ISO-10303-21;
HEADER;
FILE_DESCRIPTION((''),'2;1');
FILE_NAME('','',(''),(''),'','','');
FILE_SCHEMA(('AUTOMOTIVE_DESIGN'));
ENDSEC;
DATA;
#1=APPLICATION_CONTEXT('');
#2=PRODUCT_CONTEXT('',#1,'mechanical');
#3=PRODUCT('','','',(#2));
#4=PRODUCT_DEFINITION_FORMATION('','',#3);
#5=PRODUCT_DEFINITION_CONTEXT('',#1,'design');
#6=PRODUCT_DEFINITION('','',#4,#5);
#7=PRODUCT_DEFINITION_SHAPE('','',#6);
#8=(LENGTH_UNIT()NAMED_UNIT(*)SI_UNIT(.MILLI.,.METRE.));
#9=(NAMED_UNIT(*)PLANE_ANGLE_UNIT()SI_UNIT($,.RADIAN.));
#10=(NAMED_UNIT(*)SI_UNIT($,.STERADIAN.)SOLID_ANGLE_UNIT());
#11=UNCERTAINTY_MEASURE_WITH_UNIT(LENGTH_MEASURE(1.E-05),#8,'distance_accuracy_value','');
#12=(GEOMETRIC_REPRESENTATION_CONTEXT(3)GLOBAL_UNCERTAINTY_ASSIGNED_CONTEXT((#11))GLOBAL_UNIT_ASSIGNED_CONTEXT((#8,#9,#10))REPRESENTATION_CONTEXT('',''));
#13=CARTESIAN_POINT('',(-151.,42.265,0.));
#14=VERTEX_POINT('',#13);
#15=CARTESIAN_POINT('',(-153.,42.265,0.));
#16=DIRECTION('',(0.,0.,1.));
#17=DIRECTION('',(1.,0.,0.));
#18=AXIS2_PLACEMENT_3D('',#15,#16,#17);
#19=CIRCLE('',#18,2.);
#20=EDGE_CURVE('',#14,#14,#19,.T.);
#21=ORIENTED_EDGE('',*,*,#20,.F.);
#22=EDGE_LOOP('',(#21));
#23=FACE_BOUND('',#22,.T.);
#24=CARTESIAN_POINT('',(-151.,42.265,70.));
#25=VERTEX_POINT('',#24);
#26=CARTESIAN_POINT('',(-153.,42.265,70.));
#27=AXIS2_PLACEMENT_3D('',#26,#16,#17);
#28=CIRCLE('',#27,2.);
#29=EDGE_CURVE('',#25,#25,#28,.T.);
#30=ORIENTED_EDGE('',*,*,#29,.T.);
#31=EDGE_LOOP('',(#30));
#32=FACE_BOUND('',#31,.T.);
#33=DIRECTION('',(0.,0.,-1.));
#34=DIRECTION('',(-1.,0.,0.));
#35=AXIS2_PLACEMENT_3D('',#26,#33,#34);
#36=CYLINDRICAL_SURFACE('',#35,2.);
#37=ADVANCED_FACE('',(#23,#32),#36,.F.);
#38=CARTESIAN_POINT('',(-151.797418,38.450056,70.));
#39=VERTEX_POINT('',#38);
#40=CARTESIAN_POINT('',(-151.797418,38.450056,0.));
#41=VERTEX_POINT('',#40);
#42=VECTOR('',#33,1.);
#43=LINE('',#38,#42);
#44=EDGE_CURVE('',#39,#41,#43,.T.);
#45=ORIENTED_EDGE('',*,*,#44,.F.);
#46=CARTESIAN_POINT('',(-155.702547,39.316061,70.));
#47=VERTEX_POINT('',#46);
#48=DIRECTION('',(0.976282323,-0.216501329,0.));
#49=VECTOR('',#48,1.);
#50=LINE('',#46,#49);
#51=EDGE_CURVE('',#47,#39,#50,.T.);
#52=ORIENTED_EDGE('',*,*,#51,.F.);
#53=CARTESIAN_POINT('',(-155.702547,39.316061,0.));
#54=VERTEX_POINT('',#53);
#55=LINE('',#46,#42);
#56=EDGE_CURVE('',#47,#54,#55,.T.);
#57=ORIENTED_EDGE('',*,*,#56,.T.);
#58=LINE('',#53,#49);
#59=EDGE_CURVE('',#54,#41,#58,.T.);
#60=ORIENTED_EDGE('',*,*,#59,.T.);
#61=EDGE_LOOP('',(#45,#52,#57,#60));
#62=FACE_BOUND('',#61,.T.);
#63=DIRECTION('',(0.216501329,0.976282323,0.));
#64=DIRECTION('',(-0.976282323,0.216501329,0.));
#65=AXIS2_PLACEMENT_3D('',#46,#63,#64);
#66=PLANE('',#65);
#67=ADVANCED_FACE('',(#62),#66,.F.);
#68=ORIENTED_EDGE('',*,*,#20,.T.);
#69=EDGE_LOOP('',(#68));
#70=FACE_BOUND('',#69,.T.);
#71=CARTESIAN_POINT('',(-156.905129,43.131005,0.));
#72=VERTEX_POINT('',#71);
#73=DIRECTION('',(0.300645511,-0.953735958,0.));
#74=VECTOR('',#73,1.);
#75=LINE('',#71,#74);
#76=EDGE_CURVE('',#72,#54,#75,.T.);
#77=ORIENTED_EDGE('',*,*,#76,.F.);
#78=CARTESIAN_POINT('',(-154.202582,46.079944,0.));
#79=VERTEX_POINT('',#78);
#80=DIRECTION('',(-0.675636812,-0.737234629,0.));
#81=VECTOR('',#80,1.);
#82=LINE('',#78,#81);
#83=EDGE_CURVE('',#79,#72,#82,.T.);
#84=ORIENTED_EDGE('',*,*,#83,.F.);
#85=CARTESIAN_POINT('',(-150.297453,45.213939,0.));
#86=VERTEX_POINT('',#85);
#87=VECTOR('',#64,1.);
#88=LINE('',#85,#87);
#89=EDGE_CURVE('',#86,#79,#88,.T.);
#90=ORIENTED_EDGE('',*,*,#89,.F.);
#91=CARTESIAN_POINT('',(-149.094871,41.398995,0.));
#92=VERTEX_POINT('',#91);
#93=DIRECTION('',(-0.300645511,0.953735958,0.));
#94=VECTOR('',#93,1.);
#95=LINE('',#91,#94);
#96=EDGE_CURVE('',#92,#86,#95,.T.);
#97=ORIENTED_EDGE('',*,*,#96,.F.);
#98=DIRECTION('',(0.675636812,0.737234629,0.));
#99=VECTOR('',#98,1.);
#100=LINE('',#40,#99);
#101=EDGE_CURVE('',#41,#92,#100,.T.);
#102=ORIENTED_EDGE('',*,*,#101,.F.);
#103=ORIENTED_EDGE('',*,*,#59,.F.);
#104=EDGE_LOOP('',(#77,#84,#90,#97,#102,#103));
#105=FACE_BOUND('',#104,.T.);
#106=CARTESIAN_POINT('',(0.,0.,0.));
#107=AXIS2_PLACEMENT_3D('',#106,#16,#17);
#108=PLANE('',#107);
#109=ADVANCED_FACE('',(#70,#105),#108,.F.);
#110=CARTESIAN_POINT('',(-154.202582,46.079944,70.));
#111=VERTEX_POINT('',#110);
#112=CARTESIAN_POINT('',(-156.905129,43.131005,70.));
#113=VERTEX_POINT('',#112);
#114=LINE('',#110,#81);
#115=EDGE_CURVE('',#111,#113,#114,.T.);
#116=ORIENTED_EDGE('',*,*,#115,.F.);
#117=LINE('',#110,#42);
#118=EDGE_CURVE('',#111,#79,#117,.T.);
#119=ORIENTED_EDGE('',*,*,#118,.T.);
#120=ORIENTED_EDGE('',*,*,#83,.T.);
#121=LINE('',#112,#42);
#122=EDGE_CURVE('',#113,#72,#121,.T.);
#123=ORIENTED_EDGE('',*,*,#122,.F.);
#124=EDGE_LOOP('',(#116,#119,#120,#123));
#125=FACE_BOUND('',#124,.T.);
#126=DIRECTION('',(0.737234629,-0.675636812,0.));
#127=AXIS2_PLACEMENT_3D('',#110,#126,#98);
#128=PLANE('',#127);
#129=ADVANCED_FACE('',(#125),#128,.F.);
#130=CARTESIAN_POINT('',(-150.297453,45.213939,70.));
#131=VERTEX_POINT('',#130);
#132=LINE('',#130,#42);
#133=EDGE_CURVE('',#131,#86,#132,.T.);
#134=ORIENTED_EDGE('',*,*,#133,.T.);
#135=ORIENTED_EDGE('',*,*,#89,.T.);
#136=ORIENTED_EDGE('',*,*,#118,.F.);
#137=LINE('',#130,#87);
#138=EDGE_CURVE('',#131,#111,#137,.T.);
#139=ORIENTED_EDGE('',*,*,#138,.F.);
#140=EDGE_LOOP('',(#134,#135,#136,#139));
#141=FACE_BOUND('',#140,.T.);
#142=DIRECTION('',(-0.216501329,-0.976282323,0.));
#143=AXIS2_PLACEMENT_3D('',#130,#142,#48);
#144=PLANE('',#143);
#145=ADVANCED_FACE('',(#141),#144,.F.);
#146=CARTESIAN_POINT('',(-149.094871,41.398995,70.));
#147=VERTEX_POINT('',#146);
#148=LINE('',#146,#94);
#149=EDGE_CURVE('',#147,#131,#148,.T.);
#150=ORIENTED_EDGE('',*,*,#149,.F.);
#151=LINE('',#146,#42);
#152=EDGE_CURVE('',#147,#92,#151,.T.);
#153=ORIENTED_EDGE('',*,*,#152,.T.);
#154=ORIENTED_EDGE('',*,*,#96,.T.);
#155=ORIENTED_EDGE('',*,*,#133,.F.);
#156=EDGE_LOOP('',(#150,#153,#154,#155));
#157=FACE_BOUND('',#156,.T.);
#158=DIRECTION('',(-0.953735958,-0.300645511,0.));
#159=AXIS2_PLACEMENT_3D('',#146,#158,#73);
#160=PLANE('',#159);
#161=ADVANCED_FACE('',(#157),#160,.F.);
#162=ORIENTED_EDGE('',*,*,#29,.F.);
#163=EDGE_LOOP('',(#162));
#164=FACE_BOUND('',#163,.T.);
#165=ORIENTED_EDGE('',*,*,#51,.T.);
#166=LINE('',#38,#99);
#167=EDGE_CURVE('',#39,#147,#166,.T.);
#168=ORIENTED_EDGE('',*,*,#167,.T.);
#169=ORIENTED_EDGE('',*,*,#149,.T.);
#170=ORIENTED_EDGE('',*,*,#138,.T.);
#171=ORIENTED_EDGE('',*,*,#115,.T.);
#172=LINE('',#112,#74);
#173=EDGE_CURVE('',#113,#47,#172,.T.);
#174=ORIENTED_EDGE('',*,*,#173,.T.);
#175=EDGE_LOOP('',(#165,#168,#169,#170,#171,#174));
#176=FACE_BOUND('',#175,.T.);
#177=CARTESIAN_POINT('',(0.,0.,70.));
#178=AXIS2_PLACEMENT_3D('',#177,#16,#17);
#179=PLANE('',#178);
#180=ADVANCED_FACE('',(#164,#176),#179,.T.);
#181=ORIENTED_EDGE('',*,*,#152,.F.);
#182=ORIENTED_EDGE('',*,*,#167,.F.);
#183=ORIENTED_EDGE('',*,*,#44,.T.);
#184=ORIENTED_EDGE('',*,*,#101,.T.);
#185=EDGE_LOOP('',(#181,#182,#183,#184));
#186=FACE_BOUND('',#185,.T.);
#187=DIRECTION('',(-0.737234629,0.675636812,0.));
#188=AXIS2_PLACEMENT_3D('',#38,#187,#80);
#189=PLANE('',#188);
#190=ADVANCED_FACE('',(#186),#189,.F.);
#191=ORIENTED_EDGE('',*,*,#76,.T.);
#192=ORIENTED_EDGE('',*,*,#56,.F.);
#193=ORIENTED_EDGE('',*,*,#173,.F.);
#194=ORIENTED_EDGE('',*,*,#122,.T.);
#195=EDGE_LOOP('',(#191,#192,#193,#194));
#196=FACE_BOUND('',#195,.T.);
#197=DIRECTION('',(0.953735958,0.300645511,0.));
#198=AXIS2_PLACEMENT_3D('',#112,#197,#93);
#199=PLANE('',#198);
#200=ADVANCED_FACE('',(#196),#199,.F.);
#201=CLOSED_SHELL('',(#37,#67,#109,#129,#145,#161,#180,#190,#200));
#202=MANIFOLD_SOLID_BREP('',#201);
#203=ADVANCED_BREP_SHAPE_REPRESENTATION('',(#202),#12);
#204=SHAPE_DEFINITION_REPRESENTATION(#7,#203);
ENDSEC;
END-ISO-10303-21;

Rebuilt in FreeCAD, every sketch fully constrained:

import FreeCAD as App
import Part
import Sketcher

V = App.Vector


def add_polygon(sketch, points):
    """Adds a closed chain of lines whose ends are joined by coincident constraints."""
    first, n = sketch.GeometryCount, len(points)
    for a, b in zip(points, points[1:] + points[:1]):
        sketch.addGeometry(Part.LineSegment(App.Vector(*a, 0), App.Vector(*b, 0)), False)
    for i in range(n):
        sketch.addConstraint(Sketcher.Constraint("Coincident", first + i, 2, first + (i + 1) % n, 1))

doc = App.newDocument("Part")
body = doc.addObject("PartDesign::Body", "Body")

# Sketch on XY plane
sketch1 = doc.addObject("Sketcher::SketchObject", "Sketch")
body.addObject(sketch1)
sketch1.AttachmentSupport = (doc.XY_Plane, [""])
sketch1.MapMode = "FlatFace"
add_polygon(sketch1, [(-154.202582, 46.079944), (-156.905129, 43.131005), (-155.702547, 39.316061), (-151.797418, 38.450056), (-149.094871, 41.398995), (-150.297453, 45.213939)])  # lines 0-5
sketch1.addGeometry(Part.Circle(V(-153, 42.265, 0), V(0, 0, 1), 2), False)  # 6
sketch1.addConstraint([
    Sketcher.Constraint("Parallel", 0, 3),
    Sketcher.Constraint("Parallel", 1, 4),
    Sketcher.Constraint("Parallel", 2, 5),
    Sketcher.Constraint("Equal", 0, 1),
    Sketcher.Constraint("Equal", 1, 2),
    Sketcher.Constraint("Equal", 2, 3),
    Sketcher.Constraint("Diameter", 6, 4.0),
    Sketcher.Constraint("Distance", 0, 4.0),
    Sketcher.Constraint("DistanceX", 6, 3, -1, 1, 153.0),
    Sketcher.Constraint("DistanceY", -1, 1, 6, 3, 42.265),
    Sketcher.Constraint("DistanceX", 0, 2, -1, 1, 156.905129),
    Sketcher.Constraint("DistanceY", -1, 1, 1, 2, 39.316061),
    Sketcher.Constraint("DistanceX", 3, 2, -1, 1, 149.094871),
    Sketcher.Constraint("DistanceY", -1, 1, 4, 2, 45.213939),
    Sketcher.Constraint("DistanceX", 1, 2, 2, 2, 3.905129),
])
pad1 = doc.addObject("PartDesign::Pad", "Pad")
body.addObject(pad1)
pad1.Profile = sketch1
pad1.Length = 70

doc.recompute()
